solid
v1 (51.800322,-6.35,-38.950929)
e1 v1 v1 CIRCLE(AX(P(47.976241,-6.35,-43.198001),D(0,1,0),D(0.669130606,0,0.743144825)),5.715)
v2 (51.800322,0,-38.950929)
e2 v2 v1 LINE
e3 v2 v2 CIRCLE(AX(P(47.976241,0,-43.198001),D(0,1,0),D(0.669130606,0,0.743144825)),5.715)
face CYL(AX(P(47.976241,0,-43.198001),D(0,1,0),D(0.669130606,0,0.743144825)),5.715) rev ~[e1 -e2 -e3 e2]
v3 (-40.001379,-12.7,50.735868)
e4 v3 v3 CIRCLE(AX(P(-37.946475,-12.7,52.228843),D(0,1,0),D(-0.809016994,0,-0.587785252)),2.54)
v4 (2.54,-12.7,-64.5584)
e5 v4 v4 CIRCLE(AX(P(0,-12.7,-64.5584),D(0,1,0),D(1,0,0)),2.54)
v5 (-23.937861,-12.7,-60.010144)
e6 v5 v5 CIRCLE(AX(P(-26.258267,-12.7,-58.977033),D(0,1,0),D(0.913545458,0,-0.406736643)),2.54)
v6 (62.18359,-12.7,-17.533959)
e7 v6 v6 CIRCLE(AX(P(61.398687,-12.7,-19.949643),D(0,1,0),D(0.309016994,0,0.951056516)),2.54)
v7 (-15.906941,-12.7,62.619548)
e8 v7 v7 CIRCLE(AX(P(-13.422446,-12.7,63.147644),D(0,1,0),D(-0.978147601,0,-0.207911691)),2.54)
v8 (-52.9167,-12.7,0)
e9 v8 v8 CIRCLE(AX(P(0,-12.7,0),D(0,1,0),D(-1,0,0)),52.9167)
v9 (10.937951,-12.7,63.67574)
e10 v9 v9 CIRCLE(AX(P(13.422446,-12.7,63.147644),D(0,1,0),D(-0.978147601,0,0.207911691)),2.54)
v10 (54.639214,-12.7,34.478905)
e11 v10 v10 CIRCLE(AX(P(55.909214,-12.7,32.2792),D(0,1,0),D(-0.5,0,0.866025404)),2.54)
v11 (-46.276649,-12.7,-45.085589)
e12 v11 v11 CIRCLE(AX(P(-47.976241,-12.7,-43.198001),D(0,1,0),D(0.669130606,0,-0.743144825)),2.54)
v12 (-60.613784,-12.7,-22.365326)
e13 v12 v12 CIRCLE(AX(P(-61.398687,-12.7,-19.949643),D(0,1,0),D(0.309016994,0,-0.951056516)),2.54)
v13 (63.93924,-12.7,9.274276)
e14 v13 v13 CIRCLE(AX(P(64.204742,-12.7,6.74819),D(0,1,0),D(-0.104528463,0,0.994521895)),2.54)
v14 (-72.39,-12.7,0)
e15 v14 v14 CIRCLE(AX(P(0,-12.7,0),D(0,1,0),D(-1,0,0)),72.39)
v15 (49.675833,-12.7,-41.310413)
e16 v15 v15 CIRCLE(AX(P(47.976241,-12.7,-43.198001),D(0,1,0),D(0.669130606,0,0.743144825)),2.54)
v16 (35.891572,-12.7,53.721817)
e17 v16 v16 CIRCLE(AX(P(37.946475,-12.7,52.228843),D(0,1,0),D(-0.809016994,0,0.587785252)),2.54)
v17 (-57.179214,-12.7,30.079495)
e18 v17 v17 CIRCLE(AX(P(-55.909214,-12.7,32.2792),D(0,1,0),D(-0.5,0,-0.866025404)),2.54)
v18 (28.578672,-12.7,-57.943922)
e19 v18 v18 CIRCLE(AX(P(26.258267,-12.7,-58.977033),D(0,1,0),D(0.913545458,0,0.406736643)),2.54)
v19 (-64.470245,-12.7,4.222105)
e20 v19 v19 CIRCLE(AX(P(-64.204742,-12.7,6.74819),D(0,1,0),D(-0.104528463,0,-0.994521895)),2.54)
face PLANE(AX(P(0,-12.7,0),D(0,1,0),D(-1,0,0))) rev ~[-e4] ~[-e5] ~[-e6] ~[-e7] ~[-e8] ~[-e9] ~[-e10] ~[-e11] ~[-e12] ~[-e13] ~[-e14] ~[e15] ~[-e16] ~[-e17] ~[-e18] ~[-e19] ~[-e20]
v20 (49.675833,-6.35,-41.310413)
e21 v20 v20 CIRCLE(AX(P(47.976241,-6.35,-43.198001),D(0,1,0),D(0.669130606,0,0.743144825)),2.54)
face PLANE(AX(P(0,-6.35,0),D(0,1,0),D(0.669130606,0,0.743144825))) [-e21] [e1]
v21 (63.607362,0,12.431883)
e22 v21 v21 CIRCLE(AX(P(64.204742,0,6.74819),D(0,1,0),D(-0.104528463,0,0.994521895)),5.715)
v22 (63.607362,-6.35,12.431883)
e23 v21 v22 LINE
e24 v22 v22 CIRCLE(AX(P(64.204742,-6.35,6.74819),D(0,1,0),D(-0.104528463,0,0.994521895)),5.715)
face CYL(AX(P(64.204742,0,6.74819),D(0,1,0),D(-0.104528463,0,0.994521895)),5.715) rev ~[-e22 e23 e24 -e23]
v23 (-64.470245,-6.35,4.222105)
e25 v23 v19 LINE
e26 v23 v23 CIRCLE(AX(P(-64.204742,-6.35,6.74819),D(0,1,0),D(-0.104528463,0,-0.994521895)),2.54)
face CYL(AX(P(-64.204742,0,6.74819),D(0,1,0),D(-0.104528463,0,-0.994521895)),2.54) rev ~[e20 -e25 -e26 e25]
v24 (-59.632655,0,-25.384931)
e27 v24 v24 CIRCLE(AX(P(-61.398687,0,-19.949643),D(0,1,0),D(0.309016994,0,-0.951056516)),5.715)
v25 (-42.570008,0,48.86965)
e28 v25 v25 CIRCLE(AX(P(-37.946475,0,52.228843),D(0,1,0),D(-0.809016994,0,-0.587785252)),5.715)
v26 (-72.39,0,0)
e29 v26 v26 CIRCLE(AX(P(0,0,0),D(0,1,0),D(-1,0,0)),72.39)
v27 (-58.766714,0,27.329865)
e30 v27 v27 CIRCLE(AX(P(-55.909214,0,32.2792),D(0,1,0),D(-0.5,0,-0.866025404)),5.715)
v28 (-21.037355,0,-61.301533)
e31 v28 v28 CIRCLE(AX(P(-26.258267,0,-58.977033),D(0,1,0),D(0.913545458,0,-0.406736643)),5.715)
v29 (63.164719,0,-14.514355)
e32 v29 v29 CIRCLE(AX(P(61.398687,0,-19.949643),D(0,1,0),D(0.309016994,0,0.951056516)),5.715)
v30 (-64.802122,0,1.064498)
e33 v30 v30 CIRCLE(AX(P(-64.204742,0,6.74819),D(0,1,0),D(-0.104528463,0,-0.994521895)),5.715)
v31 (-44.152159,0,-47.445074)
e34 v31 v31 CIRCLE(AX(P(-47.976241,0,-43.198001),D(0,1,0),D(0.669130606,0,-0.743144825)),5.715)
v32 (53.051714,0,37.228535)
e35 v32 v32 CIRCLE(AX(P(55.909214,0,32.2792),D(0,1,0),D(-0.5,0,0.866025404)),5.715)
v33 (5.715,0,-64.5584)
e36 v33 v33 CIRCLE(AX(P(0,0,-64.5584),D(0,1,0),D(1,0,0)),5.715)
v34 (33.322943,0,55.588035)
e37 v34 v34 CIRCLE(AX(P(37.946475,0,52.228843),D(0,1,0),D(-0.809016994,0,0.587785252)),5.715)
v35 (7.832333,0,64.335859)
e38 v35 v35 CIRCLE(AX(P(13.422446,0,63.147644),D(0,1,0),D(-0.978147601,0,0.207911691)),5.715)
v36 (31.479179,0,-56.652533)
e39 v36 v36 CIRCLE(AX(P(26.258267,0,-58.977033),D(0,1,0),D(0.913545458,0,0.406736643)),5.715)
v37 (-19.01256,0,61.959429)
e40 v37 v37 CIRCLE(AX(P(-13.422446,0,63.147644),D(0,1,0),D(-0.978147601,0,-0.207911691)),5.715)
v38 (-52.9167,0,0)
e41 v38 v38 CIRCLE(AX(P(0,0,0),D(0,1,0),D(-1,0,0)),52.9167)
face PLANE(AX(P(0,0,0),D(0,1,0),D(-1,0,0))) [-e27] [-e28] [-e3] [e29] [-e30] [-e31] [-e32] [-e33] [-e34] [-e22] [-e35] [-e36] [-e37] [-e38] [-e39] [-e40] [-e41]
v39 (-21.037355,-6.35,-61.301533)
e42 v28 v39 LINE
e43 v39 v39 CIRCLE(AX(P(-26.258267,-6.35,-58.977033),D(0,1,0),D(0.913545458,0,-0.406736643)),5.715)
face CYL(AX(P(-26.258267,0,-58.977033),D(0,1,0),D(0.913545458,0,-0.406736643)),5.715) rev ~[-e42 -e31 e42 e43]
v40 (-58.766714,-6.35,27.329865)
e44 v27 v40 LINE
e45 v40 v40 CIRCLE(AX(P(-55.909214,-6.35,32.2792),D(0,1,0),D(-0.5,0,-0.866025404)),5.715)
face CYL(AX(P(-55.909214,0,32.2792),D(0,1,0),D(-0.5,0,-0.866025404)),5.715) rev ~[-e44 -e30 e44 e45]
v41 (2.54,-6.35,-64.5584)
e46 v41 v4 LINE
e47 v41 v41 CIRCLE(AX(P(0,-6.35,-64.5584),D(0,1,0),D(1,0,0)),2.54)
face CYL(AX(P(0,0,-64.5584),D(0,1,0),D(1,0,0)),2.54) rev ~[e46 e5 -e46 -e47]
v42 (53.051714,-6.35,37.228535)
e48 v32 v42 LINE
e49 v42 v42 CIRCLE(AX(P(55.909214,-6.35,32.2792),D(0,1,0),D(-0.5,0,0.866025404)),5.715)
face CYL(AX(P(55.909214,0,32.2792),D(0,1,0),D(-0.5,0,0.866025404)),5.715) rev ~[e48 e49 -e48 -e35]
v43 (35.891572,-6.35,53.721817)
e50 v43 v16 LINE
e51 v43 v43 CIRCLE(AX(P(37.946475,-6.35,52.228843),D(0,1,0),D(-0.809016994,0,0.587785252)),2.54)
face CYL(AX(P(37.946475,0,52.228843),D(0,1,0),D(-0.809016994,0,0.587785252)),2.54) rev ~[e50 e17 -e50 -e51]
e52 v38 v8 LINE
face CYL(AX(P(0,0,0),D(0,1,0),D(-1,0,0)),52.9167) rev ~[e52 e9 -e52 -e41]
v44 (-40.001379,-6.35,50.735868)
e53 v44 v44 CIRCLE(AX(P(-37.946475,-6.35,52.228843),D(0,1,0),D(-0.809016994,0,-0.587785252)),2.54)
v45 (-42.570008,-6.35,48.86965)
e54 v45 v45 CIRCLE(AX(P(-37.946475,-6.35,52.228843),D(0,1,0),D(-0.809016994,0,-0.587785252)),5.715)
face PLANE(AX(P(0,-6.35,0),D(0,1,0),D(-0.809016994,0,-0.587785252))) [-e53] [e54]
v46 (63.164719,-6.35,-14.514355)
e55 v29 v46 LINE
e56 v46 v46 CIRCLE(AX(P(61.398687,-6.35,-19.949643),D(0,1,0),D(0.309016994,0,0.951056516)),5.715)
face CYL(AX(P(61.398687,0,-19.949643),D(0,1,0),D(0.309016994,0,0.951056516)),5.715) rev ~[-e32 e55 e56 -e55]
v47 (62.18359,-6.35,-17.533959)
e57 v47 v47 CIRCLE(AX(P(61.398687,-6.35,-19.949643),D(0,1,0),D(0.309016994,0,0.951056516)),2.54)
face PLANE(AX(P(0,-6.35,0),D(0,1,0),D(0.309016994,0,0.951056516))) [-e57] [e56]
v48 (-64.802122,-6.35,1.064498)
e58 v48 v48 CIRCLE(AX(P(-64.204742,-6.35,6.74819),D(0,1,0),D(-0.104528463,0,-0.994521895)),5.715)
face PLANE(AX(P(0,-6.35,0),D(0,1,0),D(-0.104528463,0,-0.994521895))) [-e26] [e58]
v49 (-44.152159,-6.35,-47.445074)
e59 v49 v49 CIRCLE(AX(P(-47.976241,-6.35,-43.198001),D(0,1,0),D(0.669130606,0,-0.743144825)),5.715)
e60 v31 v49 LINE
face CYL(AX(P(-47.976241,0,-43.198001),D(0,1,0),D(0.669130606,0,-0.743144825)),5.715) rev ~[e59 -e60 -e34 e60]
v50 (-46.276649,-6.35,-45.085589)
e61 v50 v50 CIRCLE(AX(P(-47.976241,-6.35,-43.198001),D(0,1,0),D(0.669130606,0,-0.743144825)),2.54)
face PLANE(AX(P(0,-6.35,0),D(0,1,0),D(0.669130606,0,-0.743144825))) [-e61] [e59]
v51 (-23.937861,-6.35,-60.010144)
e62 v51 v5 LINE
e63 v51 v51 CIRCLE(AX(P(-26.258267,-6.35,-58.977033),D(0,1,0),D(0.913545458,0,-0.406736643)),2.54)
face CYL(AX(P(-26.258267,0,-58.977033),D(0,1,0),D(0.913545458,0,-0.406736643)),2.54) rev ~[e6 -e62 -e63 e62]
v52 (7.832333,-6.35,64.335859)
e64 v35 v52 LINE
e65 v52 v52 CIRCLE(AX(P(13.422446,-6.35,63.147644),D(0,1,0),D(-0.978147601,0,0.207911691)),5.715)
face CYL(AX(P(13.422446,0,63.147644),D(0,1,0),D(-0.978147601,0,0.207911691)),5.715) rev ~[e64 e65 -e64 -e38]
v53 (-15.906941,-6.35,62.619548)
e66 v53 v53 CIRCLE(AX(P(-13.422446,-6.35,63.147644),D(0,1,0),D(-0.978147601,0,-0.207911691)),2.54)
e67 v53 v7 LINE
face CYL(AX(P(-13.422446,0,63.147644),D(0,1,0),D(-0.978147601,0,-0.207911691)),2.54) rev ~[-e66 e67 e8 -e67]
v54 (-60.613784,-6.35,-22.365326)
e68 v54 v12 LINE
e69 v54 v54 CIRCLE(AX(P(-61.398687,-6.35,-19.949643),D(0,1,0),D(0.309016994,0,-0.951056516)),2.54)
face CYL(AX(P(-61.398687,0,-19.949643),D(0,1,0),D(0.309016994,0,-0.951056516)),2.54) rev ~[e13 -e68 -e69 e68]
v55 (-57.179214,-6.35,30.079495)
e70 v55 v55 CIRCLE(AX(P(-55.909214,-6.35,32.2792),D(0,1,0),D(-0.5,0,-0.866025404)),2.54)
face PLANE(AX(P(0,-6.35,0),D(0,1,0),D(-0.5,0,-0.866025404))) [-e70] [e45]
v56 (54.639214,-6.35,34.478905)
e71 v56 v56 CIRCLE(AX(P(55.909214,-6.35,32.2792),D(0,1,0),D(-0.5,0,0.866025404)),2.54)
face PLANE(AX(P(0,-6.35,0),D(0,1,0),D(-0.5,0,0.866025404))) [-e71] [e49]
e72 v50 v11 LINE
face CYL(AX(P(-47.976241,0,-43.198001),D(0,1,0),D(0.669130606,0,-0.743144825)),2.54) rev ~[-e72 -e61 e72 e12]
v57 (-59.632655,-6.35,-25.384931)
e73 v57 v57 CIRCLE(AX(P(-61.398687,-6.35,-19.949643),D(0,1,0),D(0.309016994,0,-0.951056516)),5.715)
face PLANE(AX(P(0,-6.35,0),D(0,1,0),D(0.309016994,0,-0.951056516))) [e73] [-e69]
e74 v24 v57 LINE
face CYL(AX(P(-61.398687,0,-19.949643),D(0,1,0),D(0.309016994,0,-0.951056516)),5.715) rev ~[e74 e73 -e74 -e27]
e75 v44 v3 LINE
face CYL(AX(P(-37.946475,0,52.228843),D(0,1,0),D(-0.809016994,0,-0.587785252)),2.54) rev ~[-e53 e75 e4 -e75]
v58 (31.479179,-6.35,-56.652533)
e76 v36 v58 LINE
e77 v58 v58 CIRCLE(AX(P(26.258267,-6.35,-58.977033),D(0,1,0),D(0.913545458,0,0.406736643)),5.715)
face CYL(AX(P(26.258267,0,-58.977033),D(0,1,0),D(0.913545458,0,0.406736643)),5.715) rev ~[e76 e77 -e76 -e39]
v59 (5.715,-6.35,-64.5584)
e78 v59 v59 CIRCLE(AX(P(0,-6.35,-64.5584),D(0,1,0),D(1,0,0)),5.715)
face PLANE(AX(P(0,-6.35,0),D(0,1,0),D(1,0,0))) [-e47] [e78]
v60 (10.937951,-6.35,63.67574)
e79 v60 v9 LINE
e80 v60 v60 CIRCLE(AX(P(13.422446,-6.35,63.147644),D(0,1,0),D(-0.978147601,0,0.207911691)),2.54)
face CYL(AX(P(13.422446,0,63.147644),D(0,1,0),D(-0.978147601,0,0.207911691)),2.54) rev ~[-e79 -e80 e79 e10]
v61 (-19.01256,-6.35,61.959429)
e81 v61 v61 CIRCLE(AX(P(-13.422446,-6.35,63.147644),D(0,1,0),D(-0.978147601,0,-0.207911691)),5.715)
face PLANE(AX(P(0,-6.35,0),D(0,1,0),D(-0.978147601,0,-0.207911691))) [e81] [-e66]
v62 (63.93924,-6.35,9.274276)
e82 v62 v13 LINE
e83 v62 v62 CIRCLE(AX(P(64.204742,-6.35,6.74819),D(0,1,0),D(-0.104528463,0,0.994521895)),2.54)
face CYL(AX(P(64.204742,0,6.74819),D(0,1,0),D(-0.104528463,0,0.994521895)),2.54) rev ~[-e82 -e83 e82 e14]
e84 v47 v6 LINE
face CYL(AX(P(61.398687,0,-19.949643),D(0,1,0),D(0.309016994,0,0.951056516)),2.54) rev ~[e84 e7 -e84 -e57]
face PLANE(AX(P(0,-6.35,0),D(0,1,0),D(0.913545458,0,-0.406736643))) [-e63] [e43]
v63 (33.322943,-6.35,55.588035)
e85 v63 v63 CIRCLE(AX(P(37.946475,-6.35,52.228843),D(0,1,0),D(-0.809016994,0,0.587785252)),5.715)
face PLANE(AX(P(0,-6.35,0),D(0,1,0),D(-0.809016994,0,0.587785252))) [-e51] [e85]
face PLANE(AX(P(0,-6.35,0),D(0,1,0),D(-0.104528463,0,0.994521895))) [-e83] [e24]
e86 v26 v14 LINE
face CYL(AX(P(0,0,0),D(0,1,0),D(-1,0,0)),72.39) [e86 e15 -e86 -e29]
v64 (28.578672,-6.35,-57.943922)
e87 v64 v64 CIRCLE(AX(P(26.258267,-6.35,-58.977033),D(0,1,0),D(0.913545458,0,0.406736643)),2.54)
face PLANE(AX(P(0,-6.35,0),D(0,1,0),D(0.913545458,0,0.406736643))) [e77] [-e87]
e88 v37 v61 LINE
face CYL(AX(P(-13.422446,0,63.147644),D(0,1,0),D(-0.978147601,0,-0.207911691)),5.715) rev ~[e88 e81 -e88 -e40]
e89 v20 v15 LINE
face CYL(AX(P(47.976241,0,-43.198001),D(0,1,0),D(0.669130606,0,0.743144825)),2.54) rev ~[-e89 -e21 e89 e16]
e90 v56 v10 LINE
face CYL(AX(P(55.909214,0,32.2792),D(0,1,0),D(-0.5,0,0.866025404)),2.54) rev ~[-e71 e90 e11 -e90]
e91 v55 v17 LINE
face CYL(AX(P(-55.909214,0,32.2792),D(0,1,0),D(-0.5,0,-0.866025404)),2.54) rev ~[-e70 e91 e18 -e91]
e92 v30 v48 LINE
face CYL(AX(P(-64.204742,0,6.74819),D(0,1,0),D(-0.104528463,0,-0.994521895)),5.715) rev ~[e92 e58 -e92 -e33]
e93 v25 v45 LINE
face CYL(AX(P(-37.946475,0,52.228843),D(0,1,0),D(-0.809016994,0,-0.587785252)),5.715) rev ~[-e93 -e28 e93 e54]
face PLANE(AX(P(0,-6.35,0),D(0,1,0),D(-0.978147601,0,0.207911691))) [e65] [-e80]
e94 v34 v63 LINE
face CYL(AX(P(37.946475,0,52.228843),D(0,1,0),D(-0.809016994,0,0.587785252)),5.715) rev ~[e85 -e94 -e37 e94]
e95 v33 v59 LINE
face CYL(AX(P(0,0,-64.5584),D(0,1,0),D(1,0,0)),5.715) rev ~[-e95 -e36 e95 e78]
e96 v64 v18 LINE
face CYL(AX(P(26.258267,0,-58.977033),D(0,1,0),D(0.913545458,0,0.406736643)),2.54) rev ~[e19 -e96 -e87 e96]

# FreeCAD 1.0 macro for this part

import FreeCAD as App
import Part
import Sketcher
from FreeCAD import Vector
Q = App.Units.Quantity

doc = App.newDocument("Part")
body = doc.addObject("PartDesign::Body", "Body")

# Sketch on XZ plane
sketch1 = body.newObject("Sketcher::SketchObject", "Sketch")
sketch1.AttachmentSupport = (doc.getObject("XZ_Plane"), [""])
sketch1.MapMode = "FlatFace"
sketch1.addGeometry([
    Part.Circle(Vector(0, 0, 0), Vector(0, 0, 1), 72),
    Part.Circle(Vector(0, 0, 0), Vector(0, 0, 1), 53),
], False)
sketch1.addConstraint([
    Sketcher.Constraint("Coincident", 0, 3, -1, 1),
    Sketcher.Constraint("Coincident", 1, 3, -1, 1),
    Sketcher.Constraint("Diameter", 0, Q("5.7 in")),
    Sketcher.Constraint("Diameter", 1, 105.8334),
])
pad1 = body.newObject("PartDesign::Pad", "Pad")
pad1.Profile = sketch1
pad1.Length = Q("0.5 in")

# Sketch on XZ plane
sketch2 = body.newObject("Sketcher::SketchObject", "Sketch001")
sketch2.AttachmentSupport = (doc.getObject("XZ_Plane"), [""])
sketch2.MapMode = "FlatFace"
sketch2.addGeometry(Part.Circle(Vector(0, -64.6, 0), Vector(0, 0, 1), 2.5), False)
sketch2.addConstraint([
    Sketcher.Constraint("PointOnObject", 0, 3, -2),
    Sketcher.Constraint("Diameter", 0, Q("0.2 in")),
    Sketcher.Constraint("DistanceY", 0, 3, -1, 1, 64.5584),
])
pocket1 = body.newObject("PartDesign::Pocket", "Pocket")
pocket1.Profile = sketch2
pocket1.Type = "ThroughAll"
pocket1.Reversed = True

# Sketch on XZ plane
sketch3 = body.newObject("Sketcher::SketchObject", "Sketch002")
sketch3.AttachmentSupport = (doc.getObject("XZ_Plane"), [""])
sketch3.MapMode = "FlatFace"
sketch3.addGeometry(Part.Circle(Vector(0, -65, 0), Vector(0, 0, 1), 6), False)
sketch3.addConstraint([
    Sketcher.Constraint("PointOnObject", 0, 3, -2),
    Sketcher.Constraint("Diameter", 0, Q("0.45 in")),
    Sketcher.Constraint("DistanceY", 0, 3, -1, 1, 64.5584),
])
pocket2 = body.newObject("PartDesign::Pocket", "Pocket001")
pocket2.Profile = sketch3
pocket2.Length = Q("0.25 in")
pocket2.Reversed = True
doc.recompute()

polarpattern = body.newObject("PartDesign::PolarPattern", "PolarPattern")
polarpattern.Originals = [pocket1, pocket2]
polarpattern.Axis = (doc.getObject("Y_Axis"), [""])
polarpattern.Angle = 360
polarpattern.Occurrences = 15
body.Tip = polarpattern

doc.recompute()
